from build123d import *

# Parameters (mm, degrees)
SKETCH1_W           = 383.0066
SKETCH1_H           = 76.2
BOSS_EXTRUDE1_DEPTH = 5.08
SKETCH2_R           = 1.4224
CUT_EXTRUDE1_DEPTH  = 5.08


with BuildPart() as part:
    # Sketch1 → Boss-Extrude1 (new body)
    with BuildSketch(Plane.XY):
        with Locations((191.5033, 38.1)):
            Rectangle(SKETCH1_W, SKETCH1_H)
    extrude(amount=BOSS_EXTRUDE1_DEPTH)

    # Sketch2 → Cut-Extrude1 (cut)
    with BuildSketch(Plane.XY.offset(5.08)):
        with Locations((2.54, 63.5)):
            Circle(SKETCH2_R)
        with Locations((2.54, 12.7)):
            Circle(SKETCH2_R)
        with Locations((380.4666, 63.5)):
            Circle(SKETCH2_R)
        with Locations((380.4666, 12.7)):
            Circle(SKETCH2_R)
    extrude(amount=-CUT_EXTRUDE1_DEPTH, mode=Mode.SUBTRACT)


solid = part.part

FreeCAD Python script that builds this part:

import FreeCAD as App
import Part
import Sketcher

V = App.Vector
Q = App.Units.Quantity


def add_polygon(sketch, points):
    """Adds a closed chain of lines whose ends are joined by coincident constraints."""
    first, n = sketch.GeometryCount, len(points)
    for a, b in zip(points, points[1:] + points[:1]):
        sketch.addGeometry(Part.LineSegment(App.Vector(*a, 0), App.Vector(*b, 0)), False)
    for i in range(n):
        sketch.addConstraint(Sketcher.Constraint("Coincident", first + i, 2, first + (i + 1) % n, 1))

doc = App.newDocument("Part")
body = doc.addObject("PartDesign::Body", "Body")

# Sketch on XY plane
sketch1 = body.newObject("Sketcher::SketchObject", "Sketch")
sketch1.AttachmentSupport = (doc.getObject("XY_Plane"), [""])
sketch1.MapMode = "FlatFace"
add_polygon(sketch1, [(0, 76), (0, 0), (383, 0), (383, 76)])  # lines 0-3
sketch1.addConstraint(Sketcher.Constraint("Vertical", 0))
sketch1.addConstraint(Sketcher.Constraint("Horizontal", 1))
sketch1.addConstraint(Sketcher.Constraint("Vertical", 2))
sketch1.addConstraint(Sketcher.Constraint("Horizontal", 3))
sketch1.addConstraint(Sketcher.Constraint("Coincident", 0, 2, -1, 1))
sketch1.addConstraint(Sketcher.Constraint("DistanceY", 0, 2, 0, 1, Q("3 in")))
sketch1.addConstraint(Sketcher.Constraint("DistanceX", 1, 1, 1, 2, Q("15.079 in")))
pad1 = body.newObject("PartDesign::Pad", "Pad")
pad1.Profile = sketch1
pad1.Length = Q("0.2 in")

# Sketch on XY plane
sketch2 = body.newObject("Sketcher::SketchObject", "Sketch001")
sketch2.AttachmentSupport = (doc.getObject("XY_Plane"), [""])
sketch2.MapMode = "FlatFace"
sketch2.AttachmentOffset = App.Placement(V(0, 0, 0.2 * 25.4), App.Rotation())
sketch2.addGeometry(Part.Circle(V(2.5, 63.5, 0), V(0, 0, 1), 1.4), False)
sketch2.addGeometry(Part.Circle(V(2.5, 12.7, 0), V(0, 0, 1), 1.4), False)
sketch2.addGeometry(Part.Circle(V(380.5, 63.5, 0), V(0, 0, 1), 1.4), False)
sketch2.addGeometry(Part.Circle(V(380.5, 12.7, 0), V(0, 0, 1), 1.4), False)
sketch2.addConstraint(Sketcher.Constraint("Equal", 0, 1))
sketch2.addConstraint(Sketcher.Constraint("Equal", 1, 2))
sketch2.addConstraint(Sketcher.Constraint("Equal", 2, 3))
sketch2.addConstraint(Sketcher.Constraint("Horizontal", 0, 3, 2, 3))
sketch2.addConstraint(Sketcher.Constraint("Horizontal", 1, 3, 3, 3))
sketch2.addConstraint(Sketcher.Constraint("Vertical", 0, 3, 1, 3))
sketch2.addConstraint(Sketcher.Constraint("Vertical", 2, 3, 3, 3))
sketch2.addConstraint(Sketcher.Constraint("Diameter", 0, Q("0.112 in")))
sketch2.addConstraint(Sketcher.Constraint("DistanceY", 1, 3, 0, 3, Q("2 in")))
sketch2.addConstraint(Sketcher.Constraint("DistanceX", -1, 1, 0, 3, Q("0.1 in")))
sketch2.addConstraint(Sketcher.Constraint("DistanceY", -1, 1, 0, 3, Q("2.5 in")))
sketch2.addConstraint(Sketcher.Constraint("DistanceX", -1, 1, 2, 3, Q("14.979 in")))
pocket1 = body.newObject("PartDesign::Pocket", "Pocket")
pocket1.Profile = sketch2
pocket1.Length = Q("0.2 in")

doc.recompute()
